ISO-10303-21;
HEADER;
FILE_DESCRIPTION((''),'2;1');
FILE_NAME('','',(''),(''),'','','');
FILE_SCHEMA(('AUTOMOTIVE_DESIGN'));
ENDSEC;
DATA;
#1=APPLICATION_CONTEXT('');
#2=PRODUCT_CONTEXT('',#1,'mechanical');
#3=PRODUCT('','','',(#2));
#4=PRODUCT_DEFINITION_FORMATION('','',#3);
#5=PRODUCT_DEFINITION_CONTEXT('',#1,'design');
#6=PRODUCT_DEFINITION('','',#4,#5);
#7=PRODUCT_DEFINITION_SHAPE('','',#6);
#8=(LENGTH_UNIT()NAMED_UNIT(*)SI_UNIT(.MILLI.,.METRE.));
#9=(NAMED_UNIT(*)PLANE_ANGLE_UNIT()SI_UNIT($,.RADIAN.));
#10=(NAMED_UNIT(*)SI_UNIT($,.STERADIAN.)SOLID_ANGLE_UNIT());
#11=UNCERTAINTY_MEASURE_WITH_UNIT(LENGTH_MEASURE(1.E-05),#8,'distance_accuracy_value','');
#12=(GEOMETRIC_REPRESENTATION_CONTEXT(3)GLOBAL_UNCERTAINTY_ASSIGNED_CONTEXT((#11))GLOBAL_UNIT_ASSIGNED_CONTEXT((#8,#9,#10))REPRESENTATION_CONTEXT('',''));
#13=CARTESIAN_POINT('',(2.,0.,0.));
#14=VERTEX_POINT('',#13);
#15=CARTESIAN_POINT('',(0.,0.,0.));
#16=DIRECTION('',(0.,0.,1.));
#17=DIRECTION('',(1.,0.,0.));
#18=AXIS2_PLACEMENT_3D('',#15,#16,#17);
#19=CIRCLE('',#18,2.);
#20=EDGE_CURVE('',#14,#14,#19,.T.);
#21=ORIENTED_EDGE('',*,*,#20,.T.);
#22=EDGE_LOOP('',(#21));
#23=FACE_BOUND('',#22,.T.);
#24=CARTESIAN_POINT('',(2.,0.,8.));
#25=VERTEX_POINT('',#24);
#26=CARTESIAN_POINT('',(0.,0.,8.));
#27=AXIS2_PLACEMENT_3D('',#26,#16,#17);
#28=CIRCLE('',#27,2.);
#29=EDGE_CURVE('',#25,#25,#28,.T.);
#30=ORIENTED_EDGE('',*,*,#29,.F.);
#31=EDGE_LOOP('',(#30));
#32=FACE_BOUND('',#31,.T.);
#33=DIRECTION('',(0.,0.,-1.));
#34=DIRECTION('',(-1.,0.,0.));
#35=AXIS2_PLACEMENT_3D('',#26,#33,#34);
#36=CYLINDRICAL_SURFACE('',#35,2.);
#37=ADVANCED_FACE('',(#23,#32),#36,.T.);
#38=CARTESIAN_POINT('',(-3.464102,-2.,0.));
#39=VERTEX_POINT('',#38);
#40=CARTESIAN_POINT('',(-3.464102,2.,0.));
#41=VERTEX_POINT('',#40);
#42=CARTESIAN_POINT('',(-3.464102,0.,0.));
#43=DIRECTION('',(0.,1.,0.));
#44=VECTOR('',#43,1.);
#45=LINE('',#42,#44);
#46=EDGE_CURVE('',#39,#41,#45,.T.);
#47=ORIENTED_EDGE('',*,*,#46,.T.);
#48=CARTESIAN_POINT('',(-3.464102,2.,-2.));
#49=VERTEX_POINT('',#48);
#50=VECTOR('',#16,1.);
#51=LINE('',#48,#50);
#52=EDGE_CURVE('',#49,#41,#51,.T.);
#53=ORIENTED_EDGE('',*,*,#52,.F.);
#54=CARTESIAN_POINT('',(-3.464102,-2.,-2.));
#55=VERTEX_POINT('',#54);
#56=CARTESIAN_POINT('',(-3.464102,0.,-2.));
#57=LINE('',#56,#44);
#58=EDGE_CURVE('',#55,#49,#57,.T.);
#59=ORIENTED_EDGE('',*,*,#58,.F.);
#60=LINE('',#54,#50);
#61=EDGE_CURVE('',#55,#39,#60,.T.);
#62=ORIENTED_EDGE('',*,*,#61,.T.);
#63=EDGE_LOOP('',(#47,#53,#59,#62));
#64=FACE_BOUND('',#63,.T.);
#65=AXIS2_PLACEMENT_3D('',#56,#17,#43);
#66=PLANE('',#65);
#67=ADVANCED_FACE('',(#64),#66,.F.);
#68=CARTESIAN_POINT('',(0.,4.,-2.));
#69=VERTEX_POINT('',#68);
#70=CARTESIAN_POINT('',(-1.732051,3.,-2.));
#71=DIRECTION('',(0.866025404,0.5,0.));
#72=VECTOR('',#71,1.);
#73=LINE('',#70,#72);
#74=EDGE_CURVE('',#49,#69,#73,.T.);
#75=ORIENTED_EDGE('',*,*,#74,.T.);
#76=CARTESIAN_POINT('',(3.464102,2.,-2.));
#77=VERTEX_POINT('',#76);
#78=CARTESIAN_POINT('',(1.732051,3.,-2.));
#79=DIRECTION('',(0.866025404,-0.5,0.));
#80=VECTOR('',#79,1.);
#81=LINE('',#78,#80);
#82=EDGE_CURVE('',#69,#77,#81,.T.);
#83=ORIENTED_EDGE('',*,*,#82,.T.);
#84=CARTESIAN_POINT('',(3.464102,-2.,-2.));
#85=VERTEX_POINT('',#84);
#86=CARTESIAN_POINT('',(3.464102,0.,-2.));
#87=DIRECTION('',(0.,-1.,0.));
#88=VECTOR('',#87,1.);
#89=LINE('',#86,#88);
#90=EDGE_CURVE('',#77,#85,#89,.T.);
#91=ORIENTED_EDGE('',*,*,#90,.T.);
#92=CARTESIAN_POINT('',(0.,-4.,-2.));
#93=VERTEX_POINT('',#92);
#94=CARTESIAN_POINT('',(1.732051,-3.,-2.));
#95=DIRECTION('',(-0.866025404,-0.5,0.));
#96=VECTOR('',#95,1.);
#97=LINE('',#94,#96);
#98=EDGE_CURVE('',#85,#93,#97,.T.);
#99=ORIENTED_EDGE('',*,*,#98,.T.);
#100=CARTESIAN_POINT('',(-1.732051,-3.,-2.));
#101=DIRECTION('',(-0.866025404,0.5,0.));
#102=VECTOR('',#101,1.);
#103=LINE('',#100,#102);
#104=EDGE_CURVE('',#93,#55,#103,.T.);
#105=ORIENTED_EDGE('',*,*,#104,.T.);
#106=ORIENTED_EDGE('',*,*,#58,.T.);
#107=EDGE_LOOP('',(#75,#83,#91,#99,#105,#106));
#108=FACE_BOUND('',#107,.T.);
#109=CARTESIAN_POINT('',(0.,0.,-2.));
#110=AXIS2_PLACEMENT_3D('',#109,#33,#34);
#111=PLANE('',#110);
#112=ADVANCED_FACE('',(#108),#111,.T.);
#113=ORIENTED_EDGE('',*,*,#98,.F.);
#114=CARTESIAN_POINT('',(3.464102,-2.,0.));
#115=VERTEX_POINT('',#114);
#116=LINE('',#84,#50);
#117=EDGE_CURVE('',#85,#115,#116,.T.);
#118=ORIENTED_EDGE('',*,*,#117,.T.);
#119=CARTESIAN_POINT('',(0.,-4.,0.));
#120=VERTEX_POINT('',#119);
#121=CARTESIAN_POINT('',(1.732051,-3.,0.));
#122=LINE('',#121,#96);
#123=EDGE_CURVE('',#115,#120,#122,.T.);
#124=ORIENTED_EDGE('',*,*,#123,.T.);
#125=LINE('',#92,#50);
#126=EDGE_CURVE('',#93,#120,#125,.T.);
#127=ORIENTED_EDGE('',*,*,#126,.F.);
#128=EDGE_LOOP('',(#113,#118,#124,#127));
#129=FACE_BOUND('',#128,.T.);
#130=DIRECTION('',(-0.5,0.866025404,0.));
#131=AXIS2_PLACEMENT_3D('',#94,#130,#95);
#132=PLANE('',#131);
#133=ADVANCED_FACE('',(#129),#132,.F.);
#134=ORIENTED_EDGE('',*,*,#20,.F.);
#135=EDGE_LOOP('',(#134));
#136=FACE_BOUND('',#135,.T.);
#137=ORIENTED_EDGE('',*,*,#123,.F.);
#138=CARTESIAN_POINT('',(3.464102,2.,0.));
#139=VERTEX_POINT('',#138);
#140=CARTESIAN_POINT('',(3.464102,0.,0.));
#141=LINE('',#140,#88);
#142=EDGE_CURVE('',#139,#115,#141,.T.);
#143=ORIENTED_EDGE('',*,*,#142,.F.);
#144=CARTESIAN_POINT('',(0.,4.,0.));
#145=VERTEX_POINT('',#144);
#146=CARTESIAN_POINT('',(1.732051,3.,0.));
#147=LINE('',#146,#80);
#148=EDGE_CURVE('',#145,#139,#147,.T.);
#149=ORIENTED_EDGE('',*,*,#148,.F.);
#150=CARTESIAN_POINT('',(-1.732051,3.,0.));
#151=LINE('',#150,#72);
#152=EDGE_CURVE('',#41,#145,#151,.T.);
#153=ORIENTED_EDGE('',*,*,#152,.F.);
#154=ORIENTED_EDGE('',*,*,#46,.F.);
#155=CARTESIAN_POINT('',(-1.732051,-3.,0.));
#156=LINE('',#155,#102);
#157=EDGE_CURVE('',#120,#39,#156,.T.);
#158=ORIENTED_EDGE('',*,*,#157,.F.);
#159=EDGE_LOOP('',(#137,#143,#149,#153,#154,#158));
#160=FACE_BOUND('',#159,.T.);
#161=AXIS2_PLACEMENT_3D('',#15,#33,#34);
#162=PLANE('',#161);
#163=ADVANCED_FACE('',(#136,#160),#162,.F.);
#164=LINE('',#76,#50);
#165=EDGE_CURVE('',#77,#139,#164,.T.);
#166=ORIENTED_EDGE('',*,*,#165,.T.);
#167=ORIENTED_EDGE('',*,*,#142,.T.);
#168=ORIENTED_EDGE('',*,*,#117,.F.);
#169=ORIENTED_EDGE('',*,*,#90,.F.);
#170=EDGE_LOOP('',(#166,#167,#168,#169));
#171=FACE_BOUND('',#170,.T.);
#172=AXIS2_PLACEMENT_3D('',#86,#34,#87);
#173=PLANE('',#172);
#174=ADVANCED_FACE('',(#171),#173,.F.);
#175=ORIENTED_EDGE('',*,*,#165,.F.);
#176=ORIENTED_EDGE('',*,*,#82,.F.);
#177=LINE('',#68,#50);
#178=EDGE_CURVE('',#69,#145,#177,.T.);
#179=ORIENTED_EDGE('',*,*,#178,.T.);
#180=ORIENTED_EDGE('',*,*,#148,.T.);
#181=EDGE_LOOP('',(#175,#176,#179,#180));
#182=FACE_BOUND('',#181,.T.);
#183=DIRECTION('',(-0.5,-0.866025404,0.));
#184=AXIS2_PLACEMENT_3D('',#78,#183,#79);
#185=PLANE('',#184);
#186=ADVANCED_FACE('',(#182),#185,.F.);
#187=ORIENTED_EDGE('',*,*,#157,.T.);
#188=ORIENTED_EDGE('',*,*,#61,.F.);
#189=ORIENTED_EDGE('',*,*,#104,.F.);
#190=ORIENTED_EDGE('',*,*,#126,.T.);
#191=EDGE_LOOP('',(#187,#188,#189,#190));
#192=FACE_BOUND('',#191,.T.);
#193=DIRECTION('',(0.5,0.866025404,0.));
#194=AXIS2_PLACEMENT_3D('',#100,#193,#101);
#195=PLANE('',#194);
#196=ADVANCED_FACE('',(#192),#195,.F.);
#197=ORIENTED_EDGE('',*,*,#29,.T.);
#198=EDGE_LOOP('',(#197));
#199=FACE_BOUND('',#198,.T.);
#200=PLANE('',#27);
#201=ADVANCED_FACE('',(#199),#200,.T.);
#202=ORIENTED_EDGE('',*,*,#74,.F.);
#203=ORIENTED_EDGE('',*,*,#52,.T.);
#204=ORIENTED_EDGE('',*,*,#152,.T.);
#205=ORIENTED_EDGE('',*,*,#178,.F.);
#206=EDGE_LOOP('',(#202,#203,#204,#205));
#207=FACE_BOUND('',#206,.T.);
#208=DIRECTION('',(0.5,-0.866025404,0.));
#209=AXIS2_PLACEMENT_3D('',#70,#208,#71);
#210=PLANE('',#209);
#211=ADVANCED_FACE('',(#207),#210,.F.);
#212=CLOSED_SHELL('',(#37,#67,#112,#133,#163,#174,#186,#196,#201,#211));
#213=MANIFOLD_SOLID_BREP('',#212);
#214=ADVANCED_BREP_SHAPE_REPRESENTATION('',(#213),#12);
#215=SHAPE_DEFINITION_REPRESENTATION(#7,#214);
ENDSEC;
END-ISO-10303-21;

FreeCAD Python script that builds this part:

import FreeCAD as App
import Part
import Sketcher
from FreeCAD import Vector
Q = App.Units.Quantity

doc = App.newDocument("Part")
params = doc.addObject("Spreadsheet::Sheet", "Params")
for row, (alias, value) in enumerate([
    ("sketch1_diameter", "4 mm"),
    ("pad1_length", "8 mm"),
    ("sketch2_height", "4 mm"),
    ("sketch2_length", "4 mm"),
    ("pad2_length", "2 mm"),
], start=1):
    params.set(f"A{row}", alias)
    params.set(f"B{row}", "=" + value)
    params.setAlias(f"B{row}", alias)

body = doc.addObject("PartDesign::Body", "Body")

# Sketch on XY plane
sketch1 = body.newObject("Sketcher::SketchObject", "Sketch")
sketch1.AttachmentSupport = (doc.getObject("XY_Plane"), [""])
sketch1.MapMode = "FlatFace"
sketch1.addGeometry(Part.Circle(Vector(0, 0, 0), Vector(0, 0, 1), 2), False)
sketch1.addConstraint(Sketcher.Constraint("Coincident", 0, 3, -1, 1))
sketch1.addConstraint(Sketcher.Constraint("Diameter", 0, Q("4 mm")))
sketch1.setExpression("Constraints[1]", "Params.sketch1_diameter")
pad1 = body.newObject("PartDesign::Pad", "Pad")
pad1.Profile = sketch1
pad1.setExpression("Length", "Params.pad1_length")

# Sketch on XY plane
sketch2 = body.newObject("Sketcher::SketchObject", "Sketch001")
sketch2.AttachmentSupport = (doc.getObject("XY_Plane"), [""])
sketch2.MapMode = "FlatFace"
sketch2.addGeometry(Part.LineSegment(Vector(0, 4, 0), Vector(3.5, 2, 0)), False)
sketch2.addGeometry(Part.LineSegment(Vector(3.5, 2, 0), Vector(3.5, -2, 0)), False)
sketch2.addGeometry(Part.LineSegment(Vector(3.5, -2, 0), Vector(0, -4, 0)), False)
sketch2.addGeometry(Part.LineSegment(Vector(0, -4, 0), Vector(-3.5, -2, 0)), False)
sketch2.addGeometry(Part.LineSegment(Vector(-3.5, -2, 0), Vector(-3.5, 2, 0)), False)
sketch2.addGeometry(Part.LineSegment(Vector(-3.5, 2, 0), Vector(0, 4, 0)), False)
sketch2.addConstraint(Sketcher.Constraint("Coincident", 0, 2, 1, 1))
sketch2.addConstraint(Sketcher.Constraint("Coincident", 1, 2, 2, 1))
sketch2.addConstraint(Sketcher.Constraint("Coincident", 2, 2, 3, 1))
sketch2.addConstraint(Sketcher.Constraint("Coincident", 3, 2, 4, 1))
sketch2.addConstraint(Sketcher.Constraint("Coincident", 4, 2, 5, 1))
sketch2.addConstraint(Sketcher.Constraint("Coincident", 5, 2, 0, 1))
sketch2.addConstraint(Sketcher.Constraint("Vertical", 1))
sketch2.addConstraint(Sketcher.Constraint("Vertical", 4))
sketch2.addConstraint(Sketcher.Constraint("Symmetric", 0, 2, 3, 2, -1, 1))
sketch2.addConstraint(Sketcher.Constraint("Symmetric", 2, 2, 5, 2, -1, 1))
sketch2.addConstraint(Sketcher.Constraint("PointOnObject", 2, 2, -2))
sketch2.addConstraint(Sketcher.Constraint("Parallel", 2, 5))
sketch2.addConstraint(Sketcher.Constraint("Horizontal", 1, 2, 3, 2))
sketch2.addConstraint(Sketcher.Constraint("DistanceY", 1, 2, 1, 1, Q("4 mm")))
sketch2.addConstraint(Sketcher.Constraint("Angle", 0, Q("-30 deg")))
sketch2.addConstraint(Sketcher.Constraint("Distance", 0, Q("4 mm")))
sketch2.setExpression("Constraints[13]", "Params.sketch2_height")
sketch2.setExpression("Constraints[15]", "Params.sketch2_length")
pad2 = body.newObject("PartDesign::Pad", "Pad001")
pad2.Profile = sketch2
pad2.setExpression("Length", "Params.pad2_length")
pad2.Reversed = True

doc.recompute()
